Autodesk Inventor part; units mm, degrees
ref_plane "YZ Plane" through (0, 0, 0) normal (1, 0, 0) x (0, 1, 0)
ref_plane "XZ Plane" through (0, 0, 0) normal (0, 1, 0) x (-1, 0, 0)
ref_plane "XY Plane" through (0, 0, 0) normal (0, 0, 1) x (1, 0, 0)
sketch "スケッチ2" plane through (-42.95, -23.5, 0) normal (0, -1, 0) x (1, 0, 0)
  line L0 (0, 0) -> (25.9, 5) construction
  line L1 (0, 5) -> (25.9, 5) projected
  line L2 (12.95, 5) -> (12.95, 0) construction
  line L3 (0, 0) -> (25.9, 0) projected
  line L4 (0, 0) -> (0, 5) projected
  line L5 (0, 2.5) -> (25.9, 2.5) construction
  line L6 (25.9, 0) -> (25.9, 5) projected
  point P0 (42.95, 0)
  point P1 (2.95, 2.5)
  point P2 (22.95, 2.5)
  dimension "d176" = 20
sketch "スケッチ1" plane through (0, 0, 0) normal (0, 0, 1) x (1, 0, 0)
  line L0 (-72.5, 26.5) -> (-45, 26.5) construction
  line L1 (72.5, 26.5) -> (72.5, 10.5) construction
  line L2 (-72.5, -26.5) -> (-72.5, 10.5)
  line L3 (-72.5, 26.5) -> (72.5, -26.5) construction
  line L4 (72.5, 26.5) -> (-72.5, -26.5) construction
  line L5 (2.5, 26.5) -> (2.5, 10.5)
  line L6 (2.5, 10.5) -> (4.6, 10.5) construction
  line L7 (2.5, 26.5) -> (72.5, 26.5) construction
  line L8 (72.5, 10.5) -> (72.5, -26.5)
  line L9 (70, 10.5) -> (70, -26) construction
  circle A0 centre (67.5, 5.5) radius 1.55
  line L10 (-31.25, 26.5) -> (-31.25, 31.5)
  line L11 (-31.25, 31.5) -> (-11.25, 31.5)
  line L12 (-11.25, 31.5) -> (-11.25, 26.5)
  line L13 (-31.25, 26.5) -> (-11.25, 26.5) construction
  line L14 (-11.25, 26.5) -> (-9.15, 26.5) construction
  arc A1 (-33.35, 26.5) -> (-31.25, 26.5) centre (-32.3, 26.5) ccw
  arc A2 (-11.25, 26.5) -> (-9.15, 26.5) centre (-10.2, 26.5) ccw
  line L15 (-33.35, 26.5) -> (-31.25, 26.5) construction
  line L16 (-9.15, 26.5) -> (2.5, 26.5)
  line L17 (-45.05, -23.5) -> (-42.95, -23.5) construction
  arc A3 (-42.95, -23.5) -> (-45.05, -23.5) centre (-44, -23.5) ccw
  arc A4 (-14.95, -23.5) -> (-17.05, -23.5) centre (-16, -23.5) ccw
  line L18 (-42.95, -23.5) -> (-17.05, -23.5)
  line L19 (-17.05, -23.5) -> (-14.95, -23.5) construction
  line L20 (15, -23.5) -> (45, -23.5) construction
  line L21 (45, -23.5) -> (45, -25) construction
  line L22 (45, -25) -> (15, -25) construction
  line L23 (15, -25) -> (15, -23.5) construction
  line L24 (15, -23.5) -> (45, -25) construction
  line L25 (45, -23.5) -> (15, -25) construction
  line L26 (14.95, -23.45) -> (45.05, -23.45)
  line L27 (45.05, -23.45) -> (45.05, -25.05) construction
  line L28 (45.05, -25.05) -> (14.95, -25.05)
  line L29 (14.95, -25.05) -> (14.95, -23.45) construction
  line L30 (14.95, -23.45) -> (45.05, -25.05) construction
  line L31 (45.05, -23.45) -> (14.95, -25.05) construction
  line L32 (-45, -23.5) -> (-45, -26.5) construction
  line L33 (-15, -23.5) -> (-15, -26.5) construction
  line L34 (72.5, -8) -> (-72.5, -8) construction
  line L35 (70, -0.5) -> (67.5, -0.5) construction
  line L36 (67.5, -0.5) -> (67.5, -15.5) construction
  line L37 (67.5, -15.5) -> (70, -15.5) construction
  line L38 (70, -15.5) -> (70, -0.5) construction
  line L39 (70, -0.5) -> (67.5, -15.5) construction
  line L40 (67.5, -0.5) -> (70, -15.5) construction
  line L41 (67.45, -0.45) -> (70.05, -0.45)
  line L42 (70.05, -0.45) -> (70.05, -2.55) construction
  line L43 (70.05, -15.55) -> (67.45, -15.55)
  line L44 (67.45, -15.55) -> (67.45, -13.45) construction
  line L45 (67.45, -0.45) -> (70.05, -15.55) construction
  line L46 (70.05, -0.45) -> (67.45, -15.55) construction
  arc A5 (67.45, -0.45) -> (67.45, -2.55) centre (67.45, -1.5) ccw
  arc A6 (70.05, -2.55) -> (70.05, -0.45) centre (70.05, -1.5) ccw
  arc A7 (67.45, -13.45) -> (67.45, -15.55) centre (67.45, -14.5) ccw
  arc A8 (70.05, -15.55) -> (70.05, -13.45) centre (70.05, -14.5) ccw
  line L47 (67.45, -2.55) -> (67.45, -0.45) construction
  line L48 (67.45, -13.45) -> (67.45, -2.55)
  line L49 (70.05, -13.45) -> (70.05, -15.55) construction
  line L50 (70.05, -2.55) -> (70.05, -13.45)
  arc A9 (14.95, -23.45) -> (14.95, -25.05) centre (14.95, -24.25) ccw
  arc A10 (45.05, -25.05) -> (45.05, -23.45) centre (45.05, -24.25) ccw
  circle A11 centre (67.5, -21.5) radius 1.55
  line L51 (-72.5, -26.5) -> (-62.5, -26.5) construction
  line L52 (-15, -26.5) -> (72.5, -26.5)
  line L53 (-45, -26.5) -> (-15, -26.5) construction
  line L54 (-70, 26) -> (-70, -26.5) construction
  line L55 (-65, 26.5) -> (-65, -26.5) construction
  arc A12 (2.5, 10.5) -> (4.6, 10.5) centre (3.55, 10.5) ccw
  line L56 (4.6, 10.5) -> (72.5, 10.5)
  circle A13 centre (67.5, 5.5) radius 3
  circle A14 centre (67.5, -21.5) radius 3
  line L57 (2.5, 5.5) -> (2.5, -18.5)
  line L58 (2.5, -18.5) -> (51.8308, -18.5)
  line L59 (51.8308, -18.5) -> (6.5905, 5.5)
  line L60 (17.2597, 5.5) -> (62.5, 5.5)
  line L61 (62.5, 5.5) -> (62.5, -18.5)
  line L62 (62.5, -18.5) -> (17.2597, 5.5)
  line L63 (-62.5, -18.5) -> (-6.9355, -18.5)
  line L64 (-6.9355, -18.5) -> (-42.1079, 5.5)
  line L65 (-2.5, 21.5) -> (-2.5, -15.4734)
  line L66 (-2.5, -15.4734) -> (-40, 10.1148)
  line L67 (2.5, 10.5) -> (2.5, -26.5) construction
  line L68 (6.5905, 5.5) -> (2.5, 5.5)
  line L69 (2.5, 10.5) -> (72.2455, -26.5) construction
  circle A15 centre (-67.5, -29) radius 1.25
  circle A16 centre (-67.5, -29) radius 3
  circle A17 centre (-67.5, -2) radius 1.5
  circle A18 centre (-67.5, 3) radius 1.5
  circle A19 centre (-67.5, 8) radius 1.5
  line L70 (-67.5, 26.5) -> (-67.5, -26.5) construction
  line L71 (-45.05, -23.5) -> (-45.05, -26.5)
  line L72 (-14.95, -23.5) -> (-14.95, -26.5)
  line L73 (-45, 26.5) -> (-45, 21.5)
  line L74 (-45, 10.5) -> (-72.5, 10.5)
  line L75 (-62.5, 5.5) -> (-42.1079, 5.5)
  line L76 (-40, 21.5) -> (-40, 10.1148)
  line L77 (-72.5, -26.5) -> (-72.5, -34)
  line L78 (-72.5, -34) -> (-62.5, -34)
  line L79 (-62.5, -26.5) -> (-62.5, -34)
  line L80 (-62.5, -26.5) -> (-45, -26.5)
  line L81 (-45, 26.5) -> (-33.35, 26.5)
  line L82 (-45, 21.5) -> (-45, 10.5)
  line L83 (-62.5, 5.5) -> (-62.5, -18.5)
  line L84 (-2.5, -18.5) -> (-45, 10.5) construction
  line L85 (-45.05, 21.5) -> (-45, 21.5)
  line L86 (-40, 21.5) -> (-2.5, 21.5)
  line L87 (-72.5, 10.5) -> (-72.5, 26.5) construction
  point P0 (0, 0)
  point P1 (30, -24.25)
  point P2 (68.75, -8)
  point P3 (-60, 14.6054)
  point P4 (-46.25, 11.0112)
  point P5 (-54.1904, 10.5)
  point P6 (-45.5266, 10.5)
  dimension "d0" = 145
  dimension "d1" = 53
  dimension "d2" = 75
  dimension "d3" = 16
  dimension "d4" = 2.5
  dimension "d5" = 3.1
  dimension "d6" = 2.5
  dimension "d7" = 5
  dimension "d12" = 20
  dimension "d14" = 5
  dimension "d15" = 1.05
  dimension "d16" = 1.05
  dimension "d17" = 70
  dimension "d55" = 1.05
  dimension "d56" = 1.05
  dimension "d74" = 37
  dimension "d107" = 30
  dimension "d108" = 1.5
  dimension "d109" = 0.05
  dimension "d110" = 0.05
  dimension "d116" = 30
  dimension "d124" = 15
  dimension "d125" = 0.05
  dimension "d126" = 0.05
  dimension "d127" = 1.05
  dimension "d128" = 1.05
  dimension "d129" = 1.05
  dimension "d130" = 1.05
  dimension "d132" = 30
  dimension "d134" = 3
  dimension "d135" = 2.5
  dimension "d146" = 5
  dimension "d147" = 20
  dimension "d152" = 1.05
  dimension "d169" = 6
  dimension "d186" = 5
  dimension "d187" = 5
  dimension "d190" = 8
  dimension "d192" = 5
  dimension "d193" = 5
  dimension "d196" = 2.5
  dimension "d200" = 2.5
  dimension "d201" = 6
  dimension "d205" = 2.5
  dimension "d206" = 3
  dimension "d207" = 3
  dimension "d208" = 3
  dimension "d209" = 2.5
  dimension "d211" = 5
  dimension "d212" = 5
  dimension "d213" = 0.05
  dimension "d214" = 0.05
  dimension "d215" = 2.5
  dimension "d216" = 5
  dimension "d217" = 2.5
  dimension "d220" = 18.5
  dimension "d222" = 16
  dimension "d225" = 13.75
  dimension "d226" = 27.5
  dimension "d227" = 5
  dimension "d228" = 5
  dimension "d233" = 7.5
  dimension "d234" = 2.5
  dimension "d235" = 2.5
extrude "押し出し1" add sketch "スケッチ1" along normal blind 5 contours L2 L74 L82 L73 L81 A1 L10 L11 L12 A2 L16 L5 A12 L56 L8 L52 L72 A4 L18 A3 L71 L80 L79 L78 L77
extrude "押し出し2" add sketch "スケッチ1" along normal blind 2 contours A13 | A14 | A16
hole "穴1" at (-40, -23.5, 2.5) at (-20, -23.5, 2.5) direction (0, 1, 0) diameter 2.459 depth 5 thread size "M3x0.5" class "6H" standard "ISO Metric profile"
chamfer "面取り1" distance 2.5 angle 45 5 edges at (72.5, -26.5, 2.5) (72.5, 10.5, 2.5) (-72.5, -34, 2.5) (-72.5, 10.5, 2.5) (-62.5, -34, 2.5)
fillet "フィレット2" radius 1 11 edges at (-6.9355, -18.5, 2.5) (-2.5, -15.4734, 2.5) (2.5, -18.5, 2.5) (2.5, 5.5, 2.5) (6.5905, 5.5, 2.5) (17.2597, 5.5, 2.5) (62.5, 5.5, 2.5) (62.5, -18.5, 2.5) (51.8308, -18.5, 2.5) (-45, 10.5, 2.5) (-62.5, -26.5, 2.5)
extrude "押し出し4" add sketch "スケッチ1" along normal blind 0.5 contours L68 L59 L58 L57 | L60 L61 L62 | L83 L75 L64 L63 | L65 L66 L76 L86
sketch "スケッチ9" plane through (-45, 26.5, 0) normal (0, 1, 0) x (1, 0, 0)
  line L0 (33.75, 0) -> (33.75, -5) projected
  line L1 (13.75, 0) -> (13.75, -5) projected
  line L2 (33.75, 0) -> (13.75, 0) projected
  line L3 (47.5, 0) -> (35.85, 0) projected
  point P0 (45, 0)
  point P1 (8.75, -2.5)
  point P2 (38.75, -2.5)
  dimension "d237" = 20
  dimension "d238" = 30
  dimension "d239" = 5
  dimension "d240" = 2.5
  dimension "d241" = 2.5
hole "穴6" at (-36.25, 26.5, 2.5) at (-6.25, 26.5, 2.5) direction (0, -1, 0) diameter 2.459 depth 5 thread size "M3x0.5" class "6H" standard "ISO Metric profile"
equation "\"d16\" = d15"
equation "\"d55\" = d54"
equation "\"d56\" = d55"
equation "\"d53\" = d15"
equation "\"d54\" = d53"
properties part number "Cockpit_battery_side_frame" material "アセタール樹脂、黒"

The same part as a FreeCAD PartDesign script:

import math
import FreeCAD as App
import Part
import Sketcher
from FreeCAD import Vector


def edges_at(feature, points):
    """Names of the edges that pass closest to the given points."""
    edges = feature.Shape.Edges
    near = lambda p: min(range(len(edges)), key=lambda i: edges[i].distToShape(Part.Vertex(*p))[0])
    return sorted({f"Edge{near(p) + 1}" for p in points})


def add_polygon(sketch, points):
    """Adds a closed chain of lines whose ends are joined by coincident constraints."""
    first, n = sketch.GeometryCount, len(points)
    for a, b in zip(points, points[1:] + points[:1]):
        sketch.addGeometry(Part.LineSegment(App.Vector(*a, 0), App.Vector(*b, 0)), False)
    for i in range(n):
        sketch.addConstraint(Sketcher.Constraint("Coincident", first + i, 2, first + (i + 1) % n, 1))

doc = App.newDocument("Part")
body = doc.addObject("PartDesign::Body", "Body")

sketch1 = doc.addObject("Sketcher::SketchObject", "Sketch")
body.addObject(sketch1)
sketch1.AttachmentSupport = (doc.XY_Plane, [""])
sketch1.MapMode = "FlatFace"
sketch1.addGeometry(Part.LineSegment(Vector(-72.5, 10.5, 0), Vector(-72.5, -34, 0)), False)
sketch1.addGeometry(Part.LineSegment(Vector(-72.5, -34, 0), Vector(-62.5, -34, 0)), False)
sketch1.addGeometry(Part.LineSegment(Vector(-62.5, -34, 0), Vector(-62.5, -26.5, 0)), False)
sketch1.addGeometry(Part.LineSegment(Vector(-62.5, -26.5, 0), Vector(-45.05, -26.5, 0)), False)
sketch1.addGeometry(Part.LineSegment(Vector(-45.05, -26.5, 0), Vector(-45.05, -23.5, 0)), False)
sketch1.addGeometry(Part.ArcOfCircle(Part.Circle(Vector(-44, -23.5, 0), Vector(0, 0, 1), 1.05), math.radians(0), math.radians(180)), False)
sketch1.addGeometry(Part.LineSegment(Vector(-42.95, -23.5, 0), Vector(-17.05, -23.5, 0)), False)
sketch1.addGeometry(Part.ArcOfCircle(Part.Circle(Vector(-16, -23.5, 0), Vector(0, 0, 1), 1.05), math.radians(0), math.radians(180)), False)
sketch1.addGeometry(Part.LineSegment(Vector(-14.95, -23.5, 0), Vector(-14.95, -26.5, 0)), False)
sketch1.addGeometry(Part.LineSegment(Vector(-14.95, -26.5, 0), Vector(72.5, -26.5, 0)), False)
sketch1.addGeometry(Part.LineSegment(Vector(72.5, -26.5, 0), Vector(72.5, 10.5, 0)), False)
sketch1.addGeometry(Part.LineSegment(Vector(72.5, 10.5, 0), Vector(4.6, 10.5, 0)), False)
sketch1.addGeometry(Part.ArcOfCircle(Part.Circle(Vector(3.55, 10.5, 0), Vector(0, 0, 1), 1.05), math.radians(180), math.radians(360)), False)
sketch1.addGeometry(Part.LineSegment(Vector(2.5, 10.5, 0), Vector(2.5, 26.5, 0)), False)
sketch1.addGeometry(Part.LineSegment(Vector(2.5, 26.5, 0), Vector(-9.15, 26.5, 0)), False)
sketch1.addGeometry(Part.ArcOfCircle(Part.Circle(Vector(-10.2, 26.5, 0), Vector(0, 0, 1), 1.05), math.radians(180), math.radians(360)), False)
sketch1.addGeometry(Part.LineSegment(Vector(-11.25, 26.5, 0), Vector(-11.25, 31.5, 0)), False)
sketch1.addGeometry(Part.LineSegment(Vector(-11.25, 31.5, 0), Vector(-31.25, 31.5, 0)), False)
sketch1.addGeometry(Part.LineSegment(Vector(-31.25, 31.5, 0), Vector(-31.25, 26.5, 0)), False)
sketch1.addGeometry(Part.ArcOfCircle(Part.Circle(Vector(-32.3, 26.5, 0), Vector(0, 0, 1), 1.05), math.radians(180), math.radians(360)), False)
sketch1.addGeometry(Part.LineSegment(Vector(-33.35, 26.5, 0), Vector(-45, 26.5, 0)), False)
sketch1.addGeometry(Part.LineSegment(Vector(-45, 26.5, 0), Vector(-45, 10.5, 0)), False)
sketch1.addGeometry(Part.LineSegment(Vector(-45, 10.5, 0), Vector(-72.5, 10.5, 0)), False)
sketch1.addGeometry(Part.Circle(Vector(-67.5, -29, 0), Vector(0, 0, 1), 3), False)
sketch1.addGeometry(Part.Circle(Vector(-67.5, -2, 0), Vector(0, 0, 1), 1.5), False)
add_polygon(sketch1, [(-6.9355, -18.5), (-62.5, -18.5), (-62.5, 5.5), (-42.1079, 5.5)])
sketch1.addGeometry(Part.ArcOfCircle(Part.Circle(Vector(14.95, -24.25, 0), Vector(0, 0, 1), 0.8), math.radians(90), math.radians(270)), False)
sketch1.addGeometry(Part.LineSegment(Vector(14.95, -23.45, 0), Vector(45.05, -23.45, 0)), False)
sketch1.addGeometry(Part.ArcOfCircle(Part.Circle(Vector(45.05, -24.25, 0), Vector(0, 0, 1), 0.8), math.radians(-90), math.radians(90)), False)
sketch1.addGeometry(Part.LineSegment(Vector(45.05, -25.05, 0), Vector(14.95, -25.05, 0)), False)
sketch1.addGeometry(Part.Circle(Vector(67.5, -21.5, 0), Vector(0, 0, 1), 3), False)
add_polygon(sketch1, [(2.5, -18.5), (2.5, 5.5), (6.5905, 5.5), (51.8308, -18.5)])
add_polygon(sketch1, [(62.5, -18.5), (17.2597, 5.5), (62.5, 5.5)])
sketch1.addGeometry(Part.ArcOfCircle(Part.Circle(Vector(67.45, -1.5, 0), Vector(0, 0, 1), 1.05), math.radians(90), math.radians(270)), False)
sketch1.addGeometry(Part.LineSegment(Vector(67.45, -0.45, 0), Vector(70.05, -0.45, 0)), False)
sketch1.addGeometry(Part.ArcOfCircle(Part.Circle(Vector(70.05, -1.5, 0), Vector(0, 0, 1), 1.05), math.radians(-90), math.radians(90)), False)
sketch1.addGeometry(Part.LineSegment(Vector(70.05, -2.55, 0), Vector(70.05, -13.45, 0)), False)
sketch1.addGeometry(Part.ArcOfCircle(Part.Circle(Vector(70.05, -14.5, 0), Vector(0, 0, 1), 1.05), math.radians(-90), math.radians(90)), False)
sketch1.addGeometry(Part.LineSegment(Vector(70.05, -15.55, 0), Vector(67.45, -15.55, 0)), False)
sketch1.addGeometry(Part.ArcOfCircle(Part.Circle(Vector(67.45, -14.5, 0), Vector(0, 0, 1), 1.05), math.radians(90), math.radians(270)), False)
sketch1.addGeometry(Part.LineSegment(Vector(67.45, -13.45, 0), Vector(67.45, -2.55, 0)), False)
sketch1.addGeometry(Part.Circle(Vector(-67.5, 3, 0), Vector(0, 0, 1), 1.5), False)
sketch1.addGeometry(Part.Circle(Vector(-67.5, 8, 0), Vector(0, 0, 1), 1.5), False)
add_polygon(sketch1, [(-40, 21.5), (-2.5, 21.5), (-2.5, -15.4734), (-40, 10.1148)])
sketch1.addGeometry(Part.Circle(Vector(67.5, 5.5, 0), Vector(0, 0, 1), 3), False)
sketch1.addConstraint([
    Sketcher.Constraint("Coincident", 0, 2, 1, 1),
    Sketcher.Constraint("Coincident", 1, 2, 2, 1),
    Sketcher.Constraint("Coincident", 2, 2, 3, 1),
    Sketcher.Constraint("Coincident", 3, 2, 4, 1),
    Sketcher.Constraint("Tangent", 4, 2, 5, 2),
    Sketcher.Constraint("Coincident", 5, 1, 6, 1),
    Sketcher.Constraint("Coincident", 6, 2, 7, 2),
    Sketcher.Constraint("Tangent", 7, 1, 8, 1),
    Sketcher.Constraint("Coincident", 8, 2, 9, 1),
    Sketcher.Constraint("Coincident", 9, 2, 10, 1),
    Sketcher.Constraint("Coincident", 10, 2, 11, 1),
    Sketcher.Constraint("Coincident", 11, 2, 12, 2),
    Sketcher.Constraint("Tangent", 12, 1, 13, 1),
    Sketcher.Constraint("Coincident", 13, 2, 14, 1),
    Sketcher.Constraint("Coincident", 14, 2, 15, 2),
    Sketcher.Constraint("Tangent", 15, 1, 16, 1),
    Sketcher.Constraint("Coincident", 16, 2, 17, 1),
    Sketcher.Constraint("Coincident", 17, 2, 18, 1),
    Sketcher.Constraint("Tangent", 18, 2, 19, 2),
    Sketcher.Constraint("Coincident", 19, 1, 20, 1),
    Sketcher.Constraint("Coincident", 20, 2, 21, 1),
    Sketcher.Constraint("Coincident", 21, 2, 22, 1),
    Sketcher.Constraint("Coincident", 22, 2, 0, 1),
    Sketcher.Constraint("Tangent", 29, 1, 30, 1),
    Sketcher.Constraint("Tangent", 30, 2, 31, 2),
    Sketcher.Constraint("Tangent", 31, 1, 32, 1),
    Sketcher.Constraint("Tangent", 32, 2, 29, 2),
    Sketcher.Constraint("Tangent", 41, 1, 42, 1),
    Sketcher.Constraint("Tangent", 42, 2, 43, 2),
    Sketcher.Constraint("Coincident", 43, 1, 44, 1),
    Sketcher.Constraint("Coincident", 44, 2, 45, 2),
    Sketcher.Constraint("Tangent", 45, 1, 46, 1),
    Sketcher.Constraint("Tangent", 46, 2, 47, 2),
    Sketcher.Constraint("Coincident", 47, 1, 48, 1),
    Sketcher.Constraint("Coincident", 48, 2, 41, 2),
    Sketcher.Constraint("Vertical", 0),
    Sketcher.Constraint("Horizontal", 1),
    Sketcher.Constraint("Vertical", 2),
    Sketcher.Constraint("Horizontal", 3),
    Sketcher.Constraint("Vertical", 4),
    Sketcher.Constraint("Horizontal", 6),
    Sketcher.Constraint("Vertical", 8),
    Sketcher.Constraint("Horizontal", 9),
    Sketcher.Constraint("Vertical", 10),
    Sketcher.Constraint("Horizontal", 11),
    Sketcher.Constraint("Vertical", 13),
    Sketcher.Constraint("Horizontal", 14),
    Sketcher.Constraint("Vertical", 16),
    Sketcher.Constraint("Horizontal", 17),
    Sketcher.Constraint("Vertical", 18),
    Sketcher.Constraint("Horizontal", 20),
    Sketcher.Constraint("Vertical", 21),
    Sketcher.Constraint("Horizontal", 22),
    Sketcher.Constraint("Horizontal", 25),
    Sketcher.Constraint("Vertical", 26),
    Sketcher.Constraint("Horizontal", 27),
    Sketcher.Constraint("Horizontal", 30),
    Sketcher.Constraint("Horizontal", 32),
    Sketcher.Constraint("Vertical", 34),
    Sketcher.Constraint("Horizontal", 35),
    Sketcher.Constraint("Horizontal", 37),
    Sketcher.Constraint("Horizontal", 39),
    Sketcher.Constraint("Vertical", 40),
    Sketcher.Constraint("Horizontal", 42),
    Sketcher.Constraint("Vertical", 44),
    Sketcher.Constraint("Horizontal", 46),
    Sketcher.Constraint("Vertical", 48),
    Sketcher.Constraint("Horizontal", 51),
    Sketcher.Constraint("Vertical", 52),
    Sketcher.Constraint("Vertical", 54),
    Sketcher.Constraint("Equal", 5, 7),
    Sketcher.Constraint("Equal", 7, 12),
    Sketcher.Constraint("Equal", 12, 15),
    Sketcher.Constraint("Equal", 15, 19),
    Sketcher.Constraint("Equal", 23, 33),
    Sketcher.Constraint("Equal", 19, 41),
    Sketcher.Constraint("Equal", 41, 43),
    Sketcher.Constraint("Equal", 43, 45),
    Sketcher.Constraint("Equal", 45, 47),
    Sketcher.Constraint("Equal", 24, 49),
    Sketcher.Constraint("Equal", 49, 50),
    Sketcher.Constraint("Equal", 33, 55),
    Sketcher.Constraint("Symmetric", 10, 2, 22, 2, -2),
    Sketcher.Constraint("Symmetric", 26, 2, 39, 2, -2),
    Sketcher.Constraint("Parallel", 36, 38),
    Sketcher.Constraint("Parallel", 28, 53),
    Sketcher.Constraint("Horizontal", 5, 3, 7, 3),
    Sketcher.Constraint("Horizontal", 15, 3, 19, 3),
    Sketcher.Constraint("Horizontal", 4, 2, 5, 1),
    Sketcher.Constraint("Horizontal", 3, 2, 8, 2),
    Sketcher.Constraint("Horizontal", 12, 3, 10, 2),
    Sketcher.Constraint("Horizontal", 19, 3, 13, 2),
    Sketcher.Constraint("Horizontal", 18, 2, 19, 1),
    Sketcher.Constraint("Horizontal", 55, 3, 26, 2),
    Sketcher.Constraint("Horizontal", 27, 2, 34, 2),
    Sketcher.Constraint("Horizontal", 28, 2, 36, 2),
    Sketcher.Constraint("Horizontal", 37, 2, 40, 2),
    Sketcher.Constraint("Vertical", 23, 3, 24, 3),
    Sketcher.Constraint("Vertical", 43, 3, 45, 3),
    Sketcher.Constraint("Vertical", 41, 3, 47, 3),
    Sketcher.Constraint("Vertical", 24, 3, 49, 3),
    Sketcher.Constraint("Vertical", 49, 3, 50, 3),
    Sketcher.Constraint("Vertical", 33, 3, 55, 3),
    Sketcher.Constraint("Vertical", 2, 2, 25, 2),
    Sketcher.Constraint("Vertical", 13, 2, 34, 2),
    Sketcher.Constraint("Vertical", 42, 2, 43, 1),
    Sketcher.Constraint("Vertical", 46, 2, 47, 1),
    Sketcher.Constraint("Equal", 14, 20),
    Sketcher.Constraint("Diameter", 23, 6.0),
    Sketcher.Constraint("Diameter", 24, 3.0),
    Sketcher.Constraint("DistanceX", 17, 2, 17, 1, 20.0),
    Sketcher.Constraint("DistanceY", 4, 1, 4, 2, 3.0),
    Sketcher.Constraint("DistanceY", 10, 1, 10, 2, 37.0),
    Sketcher.Constraint("DistanceY", 13, 1, 13, 2, 16.0),
    Sketcher.Constraint("DistanceY", 16, 1, 16, 2, 5.0),
    Sketcher.Constraint("Radius", 5, 1.05),
    Sketcher.Constraint("DistanceX", 22, 2, 22, 1, 27.5),
    Sketcher.Constraint("DistanceY", 2, 1, 2, 2, 7.5),
    Sketcher.Constraint("DistanceX", 7, 3, -1, 1, 16.0),
    Sketcher.Constraint("DistanceY", -1, 1, 49, 3, 3.0),
    Sketcher.Constraint("DistanceY", -1, 1, 50, 3, 8.0),
    Sketcher.Constraint("DistanceY", 41, 3, -1, 1, 1.5),
    Sketcher.Constraint("DistanceX", -1, 1, 12, 1, 2.5),
    Sketcher.Constraint("DistanceY", 25, 2, -1, 1, 18.5),
    Sketcher.Constraint("DistanceX", 51, 2, -1, 1, 2.5),
    Sketcher.Constraint("Radius", 29, 0.8),
    Sketcher.Constraint("DistanceX", 1, 1, 1, 2, 10.0),
    Sketcher.Constraint("DistanceY", 26, 1, 26, 2, 24.0),
    Sketcher.Constraint("DistanceX", 6, 1, 6, 2, 25.9),
    Sketcher.Constraint("DistanceX", 11, 2, 11, 1, 67.9),
    Sketcher.Constraint("DistanceX", 30, 1, 30, 2, 30.1),
    Sketcher.Constraint("DistanceX", 42, 1, 42, 2, 2.6),
    Sketcher.Constraint("DistanceX", 51, 1, 51, 2, 37.5),
    Sketcher.Constraint("DistanceY", 44, 2, 44, 1, 10.9),
    Sketcher.Constraint("DistanceY", 23, 3, -1, 1, 29.0),
    Sketcher.Constraint("DistanceY", 24, 3, -1, 1, 2.0),
    Sketcher.Constraint("DistanceY", 0, 2, -1, 1, 34.0),
    Sketcher.Constraint("DistanceX", 23, 3, -1, 1, 67.5),
    Sketcher.Constraint("DistanceX", -1, 1, 33, 3, 67.5),
    Sketcher.Constraint("DistanceY", 33, 3, -1, 1, 21.5),
    Sketcher.Constraint("DistanceY", -1, 1, 51, 2, 21.5),
    Sketcher.Constraint("DistanceX", 27, 1, 27, 2, 20.392),
    Sketcher.Constraint("DistanceX", -1, 1, 29, 3, 14.95),
    Sketcher.Constraint("DistanceY", 29, 3, -1, 1, 24.25),
    Sketcher.Constraint("DistanceX", -1, 1, 41, 3, 67.45),
    Sketcher.Constraint("DistanceX", 25, 2, 25, 1, 55.5645),
    Sketcher.Constraint("DistanceX", 35, 1, 35, 2, 4.0905),
    Sketcher.Constraint("DistanceX", 37, 2, 37, 1, 49.3308),
    Sketcher.Constraint("DistanceY", 52, 2, 52, 1, 36.9734),
])
pad1 = doc.addObject("PartDesign::Pad", "Pad")
body.addObject(pad1)
pad1.Profile = sketch1
pad1.Length = 5

sketch2 = doc.addObject("Sketcher::SketchObject", "Sketch001")
body.addObject(sketch2)
sketch2.AttachmentSupport = (doc.XY_Plane, [""])
sketch2.MapMode = "FlatFace"
sketch2.addGeometry([
    Part.Circle(Vector(67.5, 5.5, 0), Vector(0, 0, 1), 3),
    Part.Circle(Vector(67.5, 5.5, 0), Vector(0, 0, 1), 1.55),
    Part.Circle(Vector(67.5, -21.5, 0), Vector(0, 0, 1), 3),
    Part.Circle(Vector(67.5, -21.5, 0), Vector(0, 0, 1), 1.55),
    Part.Circle(Vector(-67.5, -29, 0), Vector(0, 0, 1), 3),
    Part.Circle(Vector(-67.5, -29, 0), Vector(0, 0, 1), 1.25),
], False)
sketch2.addConstraint([
    Sketcher.Constraint("Coincident", 1, 3, 0, 3),
    Sketcher.Constraint("Coincident", 3, 3, 2, 3),
    Sketcher.Constraint("Coincident", 5, 3, 4, 3),
    Sketcher.Constraint("Equal", 0, 2),
    Sketcher.Constraint("Equal", 1, 3),
    Sketcher.Constraint("Equal", 2, 4),
    Sketcher.Constraint("Vertical", 1, 3, 2, 3),
    Sketcher.Constraint("Diameter", 0, 6.0),
    Sketcher.Constraint("Diameter", 1, 3.1),
    Sketcher.Constraint("Diameter", 5, 2.5),
    Sketcher.Constraint("DistanceY", 4, 3, 2, 3, 7.5),
    Sketcher.Constraint("DistanceY", 4, 3, -1, 1, 29.0),
    Sketcher.Constraint("DistanceY", 2, 3, 0, 3, 27.0),
    Sketcher.Constraint("DistanceX", 4, 3, 2, 3, 135.0),
    Sketcher.Constraint("DistanceX", -1, 1, 0, 3, 67.5),
])
pad2 = doc.addObject("PartDesign::Pad", "Pad001")
body.addObject(pad2)
pad2.Profile = sketch2
pad2.Length = 2

sketch3 = doc.addObject("Sketcher::SketchObject", "Sketch002")
body.addObject(sketch3)
sketch3.AttachmentSupport = (doc.XZ_Plane, [""])
sketch3.MapMode = "FlatFace"
sketch3.AttachmentOffset = App.Placement(Vector(0, 0, 23.5), App.Rotation())
sketch3.addGeometry([
    Part.Circle(Vector(-40, 2.5, 0), Vector(0, 0, 1), 1.2295),
    Part.Circle(Vector(-20, 2.5, 0), Vector(0, 0, 1), 1.2295),
], False)
sketch3.addConstraint([
    Sketcher.Constraint("Equal", 0, 1),
    Sketcher.Constraint("Horizontal", 0, 3, 1, 3),
    Sketcher.Constraint("Diameter", 0, 2.459),
    Sketcher.Constraint("DistanceX", 0, 3, -1, 1, 40.0),
    Sketcher.Constraint("DistanceX", 1, 3, -1, 1, 20.0),
    Sketcher.Constraint("DistanceY", -1, 1, 0, 3, 2.5),
])
doc.recompute()
hole = doc.addObject("PartDesign::Hole", "Hole")
body.addObject(hole)
hole.Profile = sketch3
hole.ThreadType = "None"
hole.Diameter = 2.459
hole.DepthType = "Dimension"
hole.Depth = 5
hole.DrillPoint = "Flat"
doc.recompute()

chamfer = doc.addObject("PartDesign::Chamfer", "Chamfer")
body.addObject(chamfer)
chamfer.Base = (hole, edges_at(hole, [
    (72.5, -26.5, 2.5),
    (72.5, 10.5, 2.5),
    (-72.5, -34, 2.5),
    (-72.5, 10.5, 2.5),
    (-62.5, -34, 2.5),
]))
chamfer.Size = 2.5
doc.recompute()

fillet = doc.addObject("PartDesign::Fillet", "Fillet")
body.addObject(fillet)
fillet.Base = (chamfer, edges_at(chamfer, [
    (-6.936, -18.5, 2.5),
    (-2.5, -15.473, 2.5),
    (2.5, -18.5, 2.5),
    (2.5, 5.5, 2.5),
    (6.59, 5.5, 2.5),
    (17.26, 5.5, 2.5),
    (62.5, 5.5, 2.5),
    (62.5, -18.5, 2.5),
    (51.831, -18.5, 2.5),
    (-45, 10.5, 2.5),
    (-62.5, -26.5, 2.5),
]))
fillet.Radius = 1

sketch4 = doc.addObject("Sketcher::SketchObject", "Sketch003")
body.addObject(sketch4)
sketch4.AttachmentSupport = (doc.XY_Plane, [""])
sketch4.MapMode = "FlatFace"
add_polygon(sketch4, [(6.5905, 5.5), (2.5, 5.5), (2.5, -18.5), (51.8308, -18.5)])
add_polygon(sketch4, [(62.5, 5.5), (17.2597, 5.5), (62.5, -18.5)])
add_polygon(sketch4, [(-62.5, 5.5), (-62.5, -18.5), (-6.9355, -18.5), (-42.1079, 5.5)])
add_polygon(sketch4, [(-2.5, -15.4734), (-2.5, 21.5), (-40, 21.5), (-40, 10.1148)])
sketch4.addConstraint([
    Sketcher.Constraint("Horizontal", 0),
    Sketcher.Constraint("Vertical", 1),
    Sketcher.Constraint("Horizontal", 2),
    Sketcher.Constraint("Horizontal", 4),
    Sketcher.Constraint("Vertical", 6),
    Sketcher.Constraint("Vertical", 7),
    Sketcher.Constraint("Horizontal", 8),
    Sketcher.Constraint("Horizontal", 10),
    Sketcher.Constraint("Vertical", 11),
    Sketcher.Constraint("Horizontal", 12),
    Sketcher.Constraint("Vertical", 13),
    Sketcher.Constraint("Symmetric", 5, 2, 7, 2, -2),
    Sketcher.Constraint("Parallel", 3, 5),
    Sketcher.Constraint("Parallel", 9, 14),
    Sketcher.Constraint("Horizontal", 3, 2, 4, 2),
    Sketcher.Constraint("Horizontal", 2, 2, 5, 2),
    Sketcher.Constraint("Horizontal", 6, 2, 9, 2),
    Sketcher.Constraint("DistanceX", 11, 2, 0, 2, 5.0),
    Sketcher.Constraint("DistanceY", 0, 2, 11, 2, 16.0),
    Sketcher.Constraint("DistanceX", -1, 1, 0, 2, 2.5),
    Sketcher.Constraint("DistanceY", 1, 2, -1, 1, 18.5),
    Sketcher.Constraint("DistanceY", 1, 2, 1, 1, 24.0),
    Sketcher.Constraint("DistanceX", 12, 2, 12, 1, 37.5),
    Sketcher.Constraint("DistanceX", 1, 2, 5, 2, 60.0),
    Sketcher.Constraint("DistanceX", 10, 2, 10, 1, 20.392),
    Sketcher.Constraint("DistanceX", 0, 2, 0, 1, 4.0905),
    Sketcher.Constraint("DistanceX", 2, 1, 2, 2, 49.3308),
    Sketcher.Constraint("DistanceX", 8, 1, 8, 2, 55.5645),
    Sketcher.Constraint("DistanceY", 11, 1, 11, 2, 36.9734),
])
pad3 = doc.addObject("PartDesign::Pad", "Pad002")
body.addObject(pad3)
pad3.Profile = sketch4
pad3.Length = 0.5

sketch5 = doc.addObject("Sketcher::SketchObject", "Sketch004")
body.addObject(sketch5)
sketch5.AttachmentSupport = (doc.XZ_Plane, [""])
sketch5.MapMode = "FlatFace"
sketch5.AttachmentOffset = App.Placement(Vector(0, 0, -26.5), App.Rotation())
sketch5.addGeometry([
    Part.Circle(Vector(-36.25, 2.5, 0), Vector(0, 0, 1), 1.2295),
    Part.Circle(Vector(-6.25, 2.5, 0), Vector(0, 0, 1), 1.2295),
], False)
sketch5.addConstraint([
    Sketcher.Constraint("Equal", 0, 1),
    Sketcher.Constraint("Horizontal", 0, 3, 1, 3),
    Sketcher.Constraint("Diameter", 0, 2.459),
    Sketcher.Constraint("DistanceX", 0, 3, 1, 3, 30.0),
    Sketcher.Constraint("DistanceY", -1, 1, 0, 3, 2.5),
    Sketcher.Constraint("DistanceX", 0, 3, -1, 1, 36.25),
])
doc.recompute()
hole2 = doc.addObject("PartDesign::Hole", "Hole001")
body.addObject(hole2)
hole2.Profile = sketch5
hole2.ThreadType = "None"
hole2.Diameter = 2.459
hole2.DepthType = "Dimension"
hole2.Depth = 5
hole2.DrillPoint = "Flat"
hole2.Reversed = True

doc.recompute()
